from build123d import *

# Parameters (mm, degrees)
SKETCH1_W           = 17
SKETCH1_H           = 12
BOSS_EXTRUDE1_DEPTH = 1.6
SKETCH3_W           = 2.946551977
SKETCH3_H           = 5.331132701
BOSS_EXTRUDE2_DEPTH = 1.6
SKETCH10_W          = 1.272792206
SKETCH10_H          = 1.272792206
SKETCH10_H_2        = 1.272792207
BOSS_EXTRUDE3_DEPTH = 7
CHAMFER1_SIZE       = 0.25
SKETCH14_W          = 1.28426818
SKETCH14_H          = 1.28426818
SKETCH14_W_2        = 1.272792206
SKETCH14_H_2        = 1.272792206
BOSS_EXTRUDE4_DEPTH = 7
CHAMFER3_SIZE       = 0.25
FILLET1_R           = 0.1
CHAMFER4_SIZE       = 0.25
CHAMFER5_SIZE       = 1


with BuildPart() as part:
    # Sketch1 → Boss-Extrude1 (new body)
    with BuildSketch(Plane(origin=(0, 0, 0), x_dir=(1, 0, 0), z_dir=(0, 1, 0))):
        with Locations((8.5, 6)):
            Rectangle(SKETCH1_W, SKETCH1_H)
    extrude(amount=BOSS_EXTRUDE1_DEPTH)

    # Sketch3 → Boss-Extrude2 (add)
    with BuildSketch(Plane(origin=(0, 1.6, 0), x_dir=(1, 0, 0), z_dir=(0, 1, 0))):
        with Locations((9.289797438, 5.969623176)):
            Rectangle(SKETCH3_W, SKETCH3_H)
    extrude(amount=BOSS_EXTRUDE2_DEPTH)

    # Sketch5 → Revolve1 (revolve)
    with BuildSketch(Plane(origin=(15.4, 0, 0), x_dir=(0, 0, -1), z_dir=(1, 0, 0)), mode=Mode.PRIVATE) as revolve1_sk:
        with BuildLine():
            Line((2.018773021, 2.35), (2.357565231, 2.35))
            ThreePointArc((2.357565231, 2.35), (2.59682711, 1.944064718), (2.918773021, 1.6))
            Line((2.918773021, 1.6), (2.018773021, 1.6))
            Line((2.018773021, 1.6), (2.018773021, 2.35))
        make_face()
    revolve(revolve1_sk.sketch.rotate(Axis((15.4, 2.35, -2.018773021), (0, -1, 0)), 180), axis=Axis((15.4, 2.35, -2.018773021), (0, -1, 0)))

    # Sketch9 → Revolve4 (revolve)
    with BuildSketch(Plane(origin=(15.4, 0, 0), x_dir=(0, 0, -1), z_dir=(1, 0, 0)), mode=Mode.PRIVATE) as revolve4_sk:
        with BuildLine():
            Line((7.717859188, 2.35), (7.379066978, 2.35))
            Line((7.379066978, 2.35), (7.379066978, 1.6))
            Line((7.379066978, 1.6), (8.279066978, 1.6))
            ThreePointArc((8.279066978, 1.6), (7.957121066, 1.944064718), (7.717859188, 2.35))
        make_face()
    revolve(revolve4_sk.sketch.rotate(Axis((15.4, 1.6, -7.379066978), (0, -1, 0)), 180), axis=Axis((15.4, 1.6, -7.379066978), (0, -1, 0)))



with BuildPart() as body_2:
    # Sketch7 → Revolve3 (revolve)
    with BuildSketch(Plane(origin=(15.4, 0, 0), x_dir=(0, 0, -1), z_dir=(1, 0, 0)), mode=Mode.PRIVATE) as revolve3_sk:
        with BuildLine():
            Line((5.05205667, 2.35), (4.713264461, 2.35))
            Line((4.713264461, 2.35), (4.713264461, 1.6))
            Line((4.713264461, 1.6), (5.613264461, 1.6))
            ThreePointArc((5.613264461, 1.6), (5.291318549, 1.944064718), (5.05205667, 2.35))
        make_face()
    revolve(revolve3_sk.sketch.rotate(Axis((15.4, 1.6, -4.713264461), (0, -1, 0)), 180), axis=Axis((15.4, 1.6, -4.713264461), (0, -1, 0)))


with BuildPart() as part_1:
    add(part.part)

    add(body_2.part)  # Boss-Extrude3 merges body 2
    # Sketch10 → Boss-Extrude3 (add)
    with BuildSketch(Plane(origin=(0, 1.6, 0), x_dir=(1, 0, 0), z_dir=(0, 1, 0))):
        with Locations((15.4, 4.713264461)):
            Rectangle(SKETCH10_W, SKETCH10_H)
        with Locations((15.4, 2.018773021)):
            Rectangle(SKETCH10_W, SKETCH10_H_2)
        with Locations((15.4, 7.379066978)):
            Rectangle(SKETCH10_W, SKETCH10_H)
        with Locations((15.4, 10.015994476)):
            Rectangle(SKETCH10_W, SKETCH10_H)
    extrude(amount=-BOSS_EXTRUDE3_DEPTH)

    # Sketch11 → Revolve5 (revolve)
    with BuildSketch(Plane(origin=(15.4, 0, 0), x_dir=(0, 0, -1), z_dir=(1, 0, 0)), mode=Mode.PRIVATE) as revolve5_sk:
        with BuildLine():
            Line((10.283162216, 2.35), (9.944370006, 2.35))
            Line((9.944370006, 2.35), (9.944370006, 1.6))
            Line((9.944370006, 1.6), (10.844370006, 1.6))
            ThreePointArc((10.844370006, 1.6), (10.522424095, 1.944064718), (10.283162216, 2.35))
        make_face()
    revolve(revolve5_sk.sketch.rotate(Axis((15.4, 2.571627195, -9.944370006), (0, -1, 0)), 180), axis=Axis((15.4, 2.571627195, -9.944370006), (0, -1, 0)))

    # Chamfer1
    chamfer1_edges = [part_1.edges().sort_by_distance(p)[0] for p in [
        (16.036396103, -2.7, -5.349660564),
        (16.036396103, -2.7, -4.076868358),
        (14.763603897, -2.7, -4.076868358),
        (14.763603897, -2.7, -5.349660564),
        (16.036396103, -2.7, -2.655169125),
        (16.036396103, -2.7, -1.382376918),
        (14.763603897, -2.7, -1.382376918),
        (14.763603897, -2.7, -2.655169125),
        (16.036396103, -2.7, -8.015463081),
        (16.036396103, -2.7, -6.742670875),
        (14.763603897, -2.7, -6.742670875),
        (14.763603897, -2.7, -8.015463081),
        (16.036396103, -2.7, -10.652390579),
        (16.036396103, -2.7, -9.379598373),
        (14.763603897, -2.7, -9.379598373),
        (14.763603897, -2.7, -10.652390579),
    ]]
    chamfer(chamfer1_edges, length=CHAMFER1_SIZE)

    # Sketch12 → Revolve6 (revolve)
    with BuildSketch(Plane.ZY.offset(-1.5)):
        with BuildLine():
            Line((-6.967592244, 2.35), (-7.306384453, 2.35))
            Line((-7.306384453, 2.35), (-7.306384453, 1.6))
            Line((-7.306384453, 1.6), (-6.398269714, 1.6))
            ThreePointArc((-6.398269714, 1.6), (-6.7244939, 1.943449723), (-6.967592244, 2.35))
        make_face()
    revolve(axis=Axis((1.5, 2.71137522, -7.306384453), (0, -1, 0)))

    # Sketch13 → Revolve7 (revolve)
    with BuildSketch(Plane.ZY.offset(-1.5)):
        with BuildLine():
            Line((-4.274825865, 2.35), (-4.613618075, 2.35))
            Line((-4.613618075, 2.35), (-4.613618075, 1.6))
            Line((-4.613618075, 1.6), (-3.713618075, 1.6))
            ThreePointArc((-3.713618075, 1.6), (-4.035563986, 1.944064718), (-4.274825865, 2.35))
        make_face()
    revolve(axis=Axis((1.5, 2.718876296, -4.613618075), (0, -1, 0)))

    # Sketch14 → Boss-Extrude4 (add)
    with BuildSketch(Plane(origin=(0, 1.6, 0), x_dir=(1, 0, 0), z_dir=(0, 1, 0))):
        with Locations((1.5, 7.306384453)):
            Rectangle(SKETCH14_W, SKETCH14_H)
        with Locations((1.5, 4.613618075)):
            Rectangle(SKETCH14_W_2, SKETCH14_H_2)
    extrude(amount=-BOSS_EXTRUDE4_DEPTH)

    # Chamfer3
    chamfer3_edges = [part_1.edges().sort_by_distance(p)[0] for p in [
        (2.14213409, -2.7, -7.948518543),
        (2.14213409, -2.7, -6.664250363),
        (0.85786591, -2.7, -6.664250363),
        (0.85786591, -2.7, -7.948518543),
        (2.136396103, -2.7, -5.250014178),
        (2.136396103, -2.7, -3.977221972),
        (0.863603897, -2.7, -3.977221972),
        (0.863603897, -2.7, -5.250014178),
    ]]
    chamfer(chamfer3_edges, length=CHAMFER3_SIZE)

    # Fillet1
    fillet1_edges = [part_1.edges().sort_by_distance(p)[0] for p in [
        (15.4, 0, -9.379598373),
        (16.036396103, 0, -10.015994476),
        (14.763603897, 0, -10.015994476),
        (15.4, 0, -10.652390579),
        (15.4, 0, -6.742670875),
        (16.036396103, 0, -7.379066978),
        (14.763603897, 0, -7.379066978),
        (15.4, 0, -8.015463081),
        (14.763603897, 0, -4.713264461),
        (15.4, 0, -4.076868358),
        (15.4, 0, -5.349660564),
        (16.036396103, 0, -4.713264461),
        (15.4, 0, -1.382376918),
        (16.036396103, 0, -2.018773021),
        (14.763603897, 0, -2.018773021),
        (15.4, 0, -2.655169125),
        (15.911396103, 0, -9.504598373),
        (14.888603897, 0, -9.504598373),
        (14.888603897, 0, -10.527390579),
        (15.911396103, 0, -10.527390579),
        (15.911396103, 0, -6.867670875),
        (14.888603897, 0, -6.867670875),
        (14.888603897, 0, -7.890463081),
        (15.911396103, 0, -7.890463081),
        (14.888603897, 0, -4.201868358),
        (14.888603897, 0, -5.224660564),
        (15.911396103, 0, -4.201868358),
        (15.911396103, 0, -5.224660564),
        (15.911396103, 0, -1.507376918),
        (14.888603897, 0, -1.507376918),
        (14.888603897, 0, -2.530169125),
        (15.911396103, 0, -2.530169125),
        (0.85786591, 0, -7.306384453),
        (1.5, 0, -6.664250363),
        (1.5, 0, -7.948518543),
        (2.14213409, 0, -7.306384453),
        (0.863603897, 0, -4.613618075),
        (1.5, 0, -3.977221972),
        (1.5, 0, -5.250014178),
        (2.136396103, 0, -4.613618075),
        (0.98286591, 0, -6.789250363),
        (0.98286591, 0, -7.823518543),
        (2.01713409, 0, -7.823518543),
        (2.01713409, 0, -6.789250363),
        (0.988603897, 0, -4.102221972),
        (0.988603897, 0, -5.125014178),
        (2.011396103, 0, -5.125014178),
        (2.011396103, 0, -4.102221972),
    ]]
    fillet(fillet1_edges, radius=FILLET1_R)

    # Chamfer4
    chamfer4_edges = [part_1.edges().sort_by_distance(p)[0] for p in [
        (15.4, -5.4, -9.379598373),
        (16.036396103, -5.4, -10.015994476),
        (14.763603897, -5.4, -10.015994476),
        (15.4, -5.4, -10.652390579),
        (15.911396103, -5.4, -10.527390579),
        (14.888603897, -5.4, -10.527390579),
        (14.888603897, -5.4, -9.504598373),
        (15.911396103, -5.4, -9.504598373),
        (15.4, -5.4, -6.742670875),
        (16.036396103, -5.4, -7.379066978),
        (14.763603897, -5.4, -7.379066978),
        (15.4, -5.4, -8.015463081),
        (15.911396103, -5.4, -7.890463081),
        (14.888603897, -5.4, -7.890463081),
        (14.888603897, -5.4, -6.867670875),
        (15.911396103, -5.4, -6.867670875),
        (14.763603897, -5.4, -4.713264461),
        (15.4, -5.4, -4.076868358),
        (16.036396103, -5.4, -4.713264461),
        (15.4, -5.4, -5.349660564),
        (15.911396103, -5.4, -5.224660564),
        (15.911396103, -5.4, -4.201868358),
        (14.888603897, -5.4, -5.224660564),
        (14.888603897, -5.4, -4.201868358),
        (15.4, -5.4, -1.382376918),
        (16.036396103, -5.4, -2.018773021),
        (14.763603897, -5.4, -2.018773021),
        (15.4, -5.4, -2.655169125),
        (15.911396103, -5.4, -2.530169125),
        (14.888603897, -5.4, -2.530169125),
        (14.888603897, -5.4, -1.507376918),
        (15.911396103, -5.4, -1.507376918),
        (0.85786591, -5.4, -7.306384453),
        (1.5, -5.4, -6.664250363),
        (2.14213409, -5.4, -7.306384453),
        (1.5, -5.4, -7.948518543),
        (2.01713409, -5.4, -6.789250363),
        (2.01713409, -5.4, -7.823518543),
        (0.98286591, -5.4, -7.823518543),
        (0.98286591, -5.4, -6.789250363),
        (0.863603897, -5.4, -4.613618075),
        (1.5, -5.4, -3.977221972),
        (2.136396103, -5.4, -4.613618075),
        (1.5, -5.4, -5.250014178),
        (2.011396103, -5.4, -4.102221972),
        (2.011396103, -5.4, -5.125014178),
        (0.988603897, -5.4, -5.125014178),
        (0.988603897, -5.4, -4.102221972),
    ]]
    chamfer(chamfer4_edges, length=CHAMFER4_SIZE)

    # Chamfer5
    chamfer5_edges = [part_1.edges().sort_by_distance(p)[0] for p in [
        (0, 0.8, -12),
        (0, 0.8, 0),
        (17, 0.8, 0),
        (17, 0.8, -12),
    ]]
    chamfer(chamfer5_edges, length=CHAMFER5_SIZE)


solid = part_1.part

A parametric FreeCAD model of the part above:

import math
import FreeCAD as App
import Part
import Sketcher
from FreeCAD import Vector


def edges_at(feature, points):
    """Names of the edges that pass closest to the given points."""
    edges = feature.Shape.Edges
    near = lambda p: min(range(len(edges)), key=lambda i: edges[i].distToShape(Part.Vertex(*p))[0])
    return sorted({f"Edge{near(p) + 1}" for p in points})

doc = App.newDocument("Part")
body = doc.addObject("PartDesign::Body", "Body")

# Sketch on XZ plane
sketch1 = body.newObject("Sketcher::SketchObject", "Sketch")
sketch1.AttachmentSupport = (doc.getObject("XZ_Plane"), [""])
sketch1.MapMode = "FlatFace"
sketch1.addGeometry([
    Part.LineSegment(Vector(0, -12, 0), Vector(0, 0, 0)),
    Part.LineSegment(Vector(0, 0, 0), Vector(17, 0, 0)),
    Part.LineSegment(Vector(17, 0, 0), Vector(17, -12, 0)),
    Part.LineSegment(Vector(17, -12, 0), Vector(0, -12, 0)),
], False)
sketch1.addConstraint([
    Sketcher.Constraint("Coincident", 0, 2, 1, 1),
    Sketcher.Constraint("Coincident", 1, 2, 2, 1),
    Sketcher.Constraint("Coincident", 2, 2, 3, 1),
    Sketcher.Constraint("Coincident", 3, 2, 0, 1),
    Sketcher.Constraint("Vertical", 0),
    Sketcher.Constraint("Horizontal", 1),
    Sketcher.Constraint("Vertical", 2),
    Sketcher.Constraint("Horizontal", 3),
    Sketcher.Constraint("Coincident", 0, 2, -1, 1),
    Sketcher.Constraint("DistanceX", 1, 1, 1, 2, 17.0),
    Sketcher.Constraint("DistanceY", 0, 1, 0, 2, 12.0),
])
pad1 = body.newObject("PartDesign::Pad", "Pad")
pad1.Profile = sketch1
pad1.Length = 1.6
pad1.Reversed = True

# Sketch on XZ plane
sketch2 = body.newObject("Sketcher::SketchObject", "Sketch001")
sketch2.AttachmentSupport = (doc.getObject("XZ_Plane"), [""])
sketch2.MapMode = "FlatFace"
sketch2.AttachmentOffset = App.Placement(Vector(0, 0, -1.6), App.Rotation())
sketch2.addGeometry([
    Part.LineSegment(Vector(7.8, -8.6, 0), Vector(7.8, -3.3, 0)),
    Part.LineSegment(Vector(7.8, -3.3, 0), Vector(10.8, -3.3, 0)),
    Part.LineSegment(Vector(10.8, -3.3, 0), Vector(10.8, -8.6, 0)),
    Part.LineSegment(Vector(10.8, -8.6, 0), Vector(7.8, -8.6, 0)),
], False)
sketch2.addConstraint([
    Sketcher.Constraint("Coincident", 0, 2, 1, 1),
    Sketcher.Constraint("Coincident", 1, 2, 2, 1),
    Sketcher.Constraint("Coincident", 2, 2, 3, 1),
    Sketcher.Constraint("Coincident", 3, 2, 0, 1),
    Sketcher.Constraint("Vertical", 0),
    Sketcher.Constraint("Horizontal", 1),
    Sketcher.Constraint("Vertical", 2),
    Sketcher.Constraint("Horizontal", 3),
    Sketcher.Constraint("DistanceX", 1, 1, 1, 2, 2.946552),
    Sketcher.Constraint("DistanceY", 0, 1, 0, 2, 5.331133),
    Sketcher.Constraint("DistanceX", -1, 1, 0, 2, 7.816521),
    Sketcher.Constraint("DistanceY", 2, 2, -1, 1, 8.63519),
])
pad2 = body.newObject("PartDesign::Pad", "Pad001")
pad2.Profile = sketch2
pad2.Length = 1.6
pad2.Reversed = True

# Sketch on YZ plane
sketch3 = body.newObject("Sketcher::SketchObject", "Sketch002")
sketch3.AttachmentSupport = (doc.getObject("YZ_Plane"), [""])
sketch3.MapMode = "FlatFace"
sketch3.AttachmentOffset = App.Placement(Vector(0, 0, 15.4), App.Rotation())
sketch3.addGeometry([
    Part.LineSegment(Vector(2.35, -2.36, 0), Vector(2.35, -2.02, 0)),
    Part.LineSegment(Vector(2.35, -2.02, 0), Vector(1.6, -2.02, 0)),
    Part.LineSegment(Vector(1.6, -2.02, 0), Vector(1.6, -2.92, 0)),
    Part.ArcOfCircle(Part.Circle(Vector(3.23, -4.32, 0), Vector(0, 0, 1), 2.15), math.radians(114), math.radians(139)),
], False)
sketch3.addGeometry(Part.LineSegment(Vector(3.23, -2.02, 0), Vector(1.6, -2.02, 0)), True)  # axis
sketch3.addConstraint([
    Sketcher.Constraint("Coincident", 0, 2, 1, 1),
    Sketcher.Constraint("Coincident", 1, 2, 2, 1),
    Sketcher.Constraint("Coincident", 2, 2, 3, 2),
    Sketcher.Constraint("Coincident", 3, 1, 0, 1),
    Sketcher.Constraint("Vertical", 0),
    Sketcher.Constraint("Horizontal", 1),
    Sketcher.Constraint("Vertical", 2),
    Sketcher.Constraint("Horizontal", 4),
    Sketcher.Constraint("Coincident", 4, 2, 1, 2),
    Sketcher.Constraint("Vertical", 3, 3, 4, 1),
    Sketcher.Constraint("Radius", 3, 2.15),
    Sketcher.Constraint("DistanceY", 2, 2, 2, 1, 0.9),
    Sketcher.Constraint("DistanceX", 1, 2, 1, 1, 0.75),
    Sketcher.Constraint("DistanceX", -1, 1, 1, 2, 1.6),
    Sketcher.Constraint("DistanceX", 4, 2, 4, 1, 1.632166),
    Sketcher.Constraint("DistanceY", 3, 3, -1, 1, 4.31825),
])
revolution = body.newObject("PartDesign::Revolution", "Revolution")
revolution.Profile = sketch3
revolution.ReferenceAxis = (sketch3, ["Axis0"])
revolution.Angle = 360

# Sketch on YZ plane
sketch4 = body.newObject("Sketcher::SketchObject", "Sketch003")
sketch4.AttachmentSupport = (doc.getObject("YZ_Plane"), [""])
sketch4.MapMode = "FlatFace"
sketch4.AttachmentOffset = App.Placement(Vector(0, 0, 15.4), App.Rotation())
sketch4.addGeometry([
    Part.LineSegment(Vector(2.35, -7.72, 0), Vector(2.35, -7.38, 0)),
    Part.LineSegment(Vector(2.35, -7.38, 0), Vector(1.6, -7.38, 0)),
    Part.LineSegment(Vector(1.6, -7.38, 0), Vector(1.6, -8.28, 0)),
    Part.ArcOfCircle(Part.Circle(Vector(3.23, -9.68, 0), Vector(0, 0, 1), 2.15), math.radians(114), math.radians(139)),
], False)
sketch4.addGeometry(Part.LineSegment(Vector(3.23, -7.38, 0), Vector(1.6, -7.38, 0)), True)  # axis
sketch4.addConstraint([
    Sketcher.Constraint("Coincident", 0, 2, 1, 1),
    Sketcher.Constraint("Coincident", 1, 2, 2, 1),
    Sketcher.Constraint("Coincident", 2, 2, 3, 2),
    Sketcher.Constraint("Coincident", 3, 1, 0, 1),
    Sketcher.Constraint("Vertical", 0),
    Sketcher.Constraint("Horizontal", 1),
    Sketcher.Constraint("Vertical", 2),
    Sketcher.Constraint("Horizontal", 4),
    Sketcher.Constraint("Coincident", 4, 2, 1, 2),
    Sketcher.Constraint("Vertical", 3, 3, 4, 1),
    Sketcher.Constraint("Radius", 3, 2.15),
    Sketcher.Constraint("DistanceY", 2, 2, 2, 1, 0.9),
    Sketcher.Constraint("DistanceX", 1, 2, 1, 1, 0.75),
    Sketcher.Constraint("DistanceX", -1, 1, 1, 2, 1.6),
    Sketcher.Constraint("DistanceX", 4, 2, 4, 1, 1.632166),
    Sketcher.Constraint("DistanceY", 3, 1, -1, 1, 7.717859),
])
revolution2 = body.newObject("PartDesign::Revolution", "Revolution001")
revolution2.Profile = sketch4
revolution2.ReferenceAxis = (sketch4, ["Axis0"])
revolution2.Angle = 360
body2 = doc.addObject("PartDesign::Body", "Body001")

# Sketch on YZ plane
sketch5 = body2.newObject("Sketcher::SketchObject", "Sketch004")
sketch5.AttachmentSupport = (doc.getObject("YZ_Plane001"), [""])
sketch5.MapMode = "FlatFace"
sketch5.AttachmentOffset = App.Placement(Vector(0, 0, 15.4), App.Rotation())
sketch5.addGeometry([
    Part.LineSegment(Vector(2.35, -5.05, 0), Vector(2.35, -4.71, 0)),
    Part.LineSegment(Vector(2.35, -4.71, 0), Vector(1.6, -4.71, 0)),
    Part.LineSegment(Vector(1.6, -4.71, 0), Vector(1.6, -5.61, 0)),
    Part.ArcOfCircle(Part.Circle(Vector(3.23, -7.01, 0), Vector(0, 0, 1), 2.15), math.radians(114), math.radians(139)),
], False)
sketch5.addGeometry(Part.LineSegment(Vector(3.23, -4.71, 0), Vector(1.6, -4.71, 0)), True)  # axis
sketch5.addConstraint([
    Sketcher.Constraint("Coincident", 0, 2, 1, 1),
    Sketcher.Constraint("Coincident", 1, 2, 2, 1),
    Sketcher.Constraint("Coincident", 2, 2, 3, 2),
    Sketcher.Constraint("Coincident", 3, 1, 0, 1),
    Sketcher.Constraint("Vertical", 0),
    Sketcher.Constraint("Horizontal", 1),
    Sketcher.Constraint("Vertical", 2),
    Sketcher.Constraint("Horizontal", 4),
    Sketcher.Constraint("Coincident", 4, 2, 1, 2),
    Sketcher.Constraint("Vertical", 3, 3, 4, 1),
    Sketcher.Constraint("Radius", 3, 2.15),
    Sketcher.Constraint("DistanceY", 2, 2, 2, 1, 0.9),
    Sketcher.Constraint("DistanceX", 1, 2, 1, 1, 0.75),
    Sketcher.Constraint("DistanceX", -1, 1, 1, 2, 1.6),
    Sketcher.Constraint("DistanceX", 4, 2, 4, 1, 1.632166),
    Sketcher.Constraint("DistanceY", 3, 3, -1, 1, 7.012741),
])
revolution3 = body2.newObject("PartDesign::Revolution", "Revolution002")
revolution3.Profile = sketch5
revolution3.ReferenceAxis = (sketch5, ["Axis0"])
revolution3.Angle = 360
doc.recompute()

boolean = body.newObject("PartDesign::Boolean", "Boolean")
boolean.Type = "Fuse"
boolean.addObjects([body2])

# Sketch on XZ plane
sketch6 = body.newObject("Sketcher::SketchObject", "Sketch005")
sketch6.AttachmentSupport = (doc.getObject("XZ_Plane"), [""])
sketch6.MapMode = "FlatFace"
sketch6.AttachmentOffset = App.Placement(Vector(0, 0, -1.6), App.Rotation())
sketch6.addGeometry([
    Part.LineSegment(Vector(14.8, -5.3, 0), Vector(14.8, -4.1, 0)),  # 0
    Part.LineSegment(Vector(14.8, -4.1, 0), Vector(16, -4.1, 0)),  # 1
    Part.LineSegment(Vector(16, -4.1, 0), Vector(16, -5.3, 0)),  # 2
    Part.LineSegment(Vector(16, -5.3, 0), Vector(14.8, -5.3, 0)),  # 3
    Part.LineSegment(Vector(14.8, -2.7, 0), Vector(14.8, -1.4, 0)),  # 4
    Part.LineSegment(Vector(14.8, -1.4, 0), Vector(16, -1.4, 0)),  # 5
    Part.LineSegment(Vector(16, -1.4, 0), Vector(16, -2.7, 0)),  # 6
    Part.LineSegment(Vector(16, -2.7, 0), Vector(14.8, -2.7, 0)),  # 7
    Part.LineSegment(Vector(14.8, -8, 0), Vector(14.8, -6.7, 0)),  # 8
    Part.LineSegment(Vector(14.8, -6.7, 0), Vector(16, -6.7, 0)),  # 9
    Part.LineSegment(Vector(16, -6.7, 0), Vector(16, -8, 0)),  # 10
    Part.LineSegment(Vector(16, -8, 0), Vector(14.8, -8, 0)),  # 11
    Part.LineSegment(Vector(14.8, -10.7, 0), Vector(14.8, -9.4, 0)),  # 12
    Part.LineSegment(Vector(14.8, -9.4, 0), Vector(16, -9.4, 0)),  # 13
    Part.LineSegment(Vector(16, -9.4, 0), Vector(16, -10.7, 0)),  # 14
    Part.LineSegment(Vector(16, -10.7, 0), Vector(14.8, -10.7, 0)),  # 15
], False)
sketch6.addConstraint([
    Sketcher.Constraint("Coincident", 0, 2, 1, 1),
    Sketcher.Constraint("Coincident", 1, 2, 2, 1),
    Sketcher.Constraint("Coincident", 2, 2, 3, 1),
    Sketcher.Constraint("Coincident", 3, 2, 0, 1),
    Sketcher.Constraint("Coincident", 4, 2, 5, 1),
    Sketcher.Constraint("Coincident", 5, 2, 6, 1),
    Sketcher.Constraint("Coincident", 6, 2, 7, 1),
    Sketcher.Constraint("Coincident", 7, 2, 4, 1),
    Sketcher.Constraint("Coincident", 8, 2, 9, 1),
    Sketcher.Constraint("Coincident", 9, 2, 10, 1),
    Sketcher.Constraint("Coincident", 10, 2, 11, 1),
    Sketcher.Constraint("Coincident", 11, 2, 8, 1),
    Sketcher.Constraint("Coincident", 12, 2, 13, 1),
    Sketcher.Constraint("Coincident", 13, 2, 14, 1),
    Sketcher.Constraint("Coincident", 14, 2, 15, 1),
    Sketcher.Constraint("Coincident", 15, 2, 12, 1),
    Sketcher.Constraint("Vertical", 0),
    Sketcher.Constraint("Horizontal", 1),
    Sketcher.Constraint("Vertical", 2),
    Sketcher.Constraint("Horizontal", 3),
    Sketcher.Constraint("Vertical", 4),
    Sketcher.Constraint("Horizontal", 5),
    Sketcher.Constraint("Vertical", 6),
    Sketcher.Constraint("Horizontal", 7),
    Sketcher.Constraint("Vertical", 8),
    Sketcher.Constraint("Horizontal", 9),
    Sketcher.Constraint("Vertical", 10),
    Sketcher.Constraint("Horizontal", 11),
    Sketcher.Constraint("Vertical", 12),
    Sketcher.Constraint("Horizontal", 13),
    Sketcher.Constraint("Vertical", 14),
    Sketcher.Constraint("Horizontal", 15),
    Sketcher.Constraint("Vertical", 3, 2, 4, 2),
    Sketcher.Constraint("Vertical", 2, 2, 5, 2),
    Sketcher.Constraint("Vertical", 7, 2, 8, 2),
    Sketcher.Constraint("Vertical", 6, 2, 9, 2),
    Sketcher.Constraint("Vertical", 11, 2, 12, 2),
    Sketcher.Constraint("Vertical", 10, 2, 13, 2),
    Sketcher.Constraint("Equal", 15, 0),
    Sketcher.Constraint("Equal", 2, 4),
    Sketcher.Constraint("Equal", 6, 8),
    Sketcher.Constraint("Equal", 10, 12),
    Sketcher.Constraint("DistanceY", 12, 2, -1, 1, 9.379598),
    Sketcher.Constraint("DistanceY", 1, 2, 6, 2, 1.421699),
    Sketcher.Constraint("DistanceY", 8, 2, 7, 2, 4.087502),
    Sketcher.Constraint("DistanceX", 1, 1, 1, 2, 1.272792),
    Sketcher.Constraint("DistanceY", 0, 2, -1, 1, 4.076868),
    Sketcher.Constraint("DistanceX", -1, 1, 0, 2, 14.763604),
])
pad3 = body.newObject("PartDesign::Pad", "Pad002")
pad3.Profile = sketch6
pad3.Length = 7

# Sketch on YZ plane
sketch7 = body.newObject("Sketcher::SketchObject", "Sketch006")
sketch7.AttachmentSupport = (doc.getObject("YZ_Plane"), [""])
sketch7.MapMode = "FlatFace"
sketch7.AttachmentOffset = App.Placement(Vector(0, 0, 15.4), App.Rotation())
sketch7.addGeometry([
    Part.LineSegment(Vector(2.35, -10.28, 0), Vector(2.35, -9.94, 0)),
    Part.LineSegment(Vector(2.35, -9.94, 0), Vector(1.6, -9.94, 0)),
    Part.LineSegment(Vector(1.6, -9.94, 0), Vector(1.6, -10.84, 0)),
    Part.ArcOfCircle(Part.Circle(Vector(3.23, -12.24, 0), Vector(0, 0, 1), 2.15), math.radians(114), math.radians(139)),
], False)
sketch7.addGeometry(Part.LineSegment(Vector(3.23, -9.94, 0), Vector(1.6, -9.94, 0)), True)  # axis
sketch7.addConstraint([
    Sketcher.Constraint("Coincident", 0, 2, 1, 1),
    Sketcher.Constraint("Coincident", 1, 2, 2, 1),
    Sketcher.Constraint("Coincident", 2, 2, 3, 2),
    Sketcher.Constraint("Coincident", 3, 1, 0, 1),
    Sketcher.Constraint("Vertical", 0),
    Sketcher.Constraint("Horizontal", 1),
    Sketcher.Constraint("Vertical", 2),
    Sketcher.Constraint("Horizontal", 4),
    Sketcher.Constraint("Coincident", 4, 2, 1, 2),
    Sketcher.Constraint("Vertical", 3, 3, 4, 1),
    Sketcher.Constraint("Radius", 3, 2.15),
    Sketcher.Constraint("DistanceY", 2, 2, 2, 1, 0.9),
    Sketcher.Constraint("DistanceX", 1, 2, 1, 1, 0.75),
    Sketcher.Constraint("DistanceX", -1, 1, 1, 2, 1.6),
    Sketcher.Constraint("DistanceX", 4, 2, 4, 1, 1.632166),
    Sketcher.Constraint("DistanceY", 0, 2, -1, 1, 9.94437),
])
revolution4 = body.newObject("PartDesign::Revolution", "Revolution003")
revolution4.Profile = sketch7
revolution4.ReferenceAxis = (sketch7, ["Axis0"])
revolution4.Angle = 360
doc.recompute()

chamfer = body.newObject("PartDesign::Chamfer", "Chamfer")
chamfer.Base = (revolution4, edges_at(revolution4, [
    (16.036, -2.7, -5.35),
    (16.036, -2.7, -4.077),
    (14.764, -2.7, -4.077),
    (14.764, -2.7, -5.35),
    (16.036, -2.7, -2.655),
    (16.036, -2.7, -1.382),
    (14.764, -2.7, -1.382),
    (14.764, -2.7, -2.655),
    (16.036, -2.7, -8.015),
    (16.036, -2.7, -6.743),
    (14.764, -2.7, -6.743),
    (14.764, -2.7, -8.015),
    (16.036, -2.7, -10.652),
    (16.036, -2.7, -9.38),
    (14.764, -2.7, -9.38),
    (14.764, -2.7, -10.652),
]))
chamfer.Size = 0.25

# Sketch on YZ plane
sketch8 = body.newObject("Sketcher::SketchObject", "Sketch007")
sketch8.AttachmentSupport = (doc.getObject("YZ_Plane"), [""])
sketch8.MapMode = "FlatFace"
sketch8.AttachmentOffset = App.Placement(Vector(0, 0, 1.5), App.Rotation())
sketch8.addGeometry([
    Part.LineSegment(Vector(2.35, -6.97, 0), Vector(2.35, -7.31, 0)),
    Part.LineSegment(Vector(2.35, -7.31, 0), Vector(1.6, -7.31, 0)),
    Part.LineSegment(Vector(1.6, -7.31, 0), Vector(1.6, -6.4, 0)),
    Part.ArcOfCircle(Part.Circle(Vector(3.24, -5.01, 0), Vector(0, 0, 1), 2.15), math.radians(-140), math.radians(-115)),
], False)
sketch8.addGeometry(Part.LineSegment(Vector(3.24, -7.31, 0), Vector(1.6, -7.31, 0)), True)  # axis
sketch8.addConstraint([
    Sketcher.Constraint("Coincident", 0, 2, 1, 1),
    Sketcher.Constraint("Coincident", 1, 2, 2, 1),
    Sketcher.Constraint("Coincident", 2, 2, 3, 1),
    Sketcher.Constraint("Coincident", 3, 2, 0, 1),
    Sketcher.Constraint("Vertical", 0),
    Sketcher.Constraint("Horizontal", 1),
    Sketcher.Constraint("Vertical", 2),
    Sketcher.Constraint("Horizontal", 4),
    Sketcher.Constraint("Coincident", 4, 2, 1, 2),
    Sketcher.Constraint("Vertical", 3, 3, 4, 1),
    Sketcher.Constraint("Radius", 3, 2.15),
    Sketcher.Constraint("DistanceX", 1, 2, 1, 1, 0.75),
    Sketcher.Constraint("DistanceX", -1, 1, 1, 2, 1.6),
    Sketcher.Constraint("DistanceX", 4, 2, 4, 1, 1.643398),
    Sketcher.Constraint("DistanceY", 3, 3, -1, 1, 5.012),
    Sketcher.Constraint("DistanceY", 0, 2, 0, 1, 0.338792),
])
revolution5 = body.newObject("PartDesign::Revolution", "Revolution004")
revolution5.Profile = sketch8
revolution5.ReferenceAxis = (sketch8, ["Axis0"])
revolution5.Angle = 360

# Sketch on YZ plane
sketch9 = body.newObject("Sketcher::SketchObject", "Sketch008")
sketch9.AttachmentSupport = (doc.getObject("YZ_Plane"), [""])
sketch9.MapMode = "FlatFace"
sketch9.AttachmentOffset = App.Placement(Vector(0, 0, 1.5), App.Rotation())
sketch9.addGeometry([
    Part.LineSegment(Vector(2.35, -4.27, 0), Vector(2.35, -4.61, 0)),
    Part.LineSegment(Vector(2.35, -4.61, 0), Vector(1.6, -4.61, 0)),
    Part.LineSegment(Vector(1.6, -4.61, 0), Vector(1.6, -3.71, 0)),
    Part.ArcOfCircle(Part.Circle(Vector(3.23, -2.31, 0), Vector(0, 0, 1), 2.15), math.radians(-139), math.radians(-114)),
], False)
sketch9.addGeometry(Part.LineSegment(Vector(3.23, -4.61, 0), Vector(1.6, -4.61, 0)), True)  # axis
sketch9.addConstraint([
    Sketcher.Constraint("Coincident", 0, 2, 1, 1),
    Sketcher.Constraint("Coincident", 1, 2, 2, 1),
    Sketcher.Constraint("Coincident", 2, 2, 3, 1),
    Sketcher.Constraint("Coincident", 3, 2, 0, 1),
    Sketcher.Constraint("Vertical", 0),
    Sketcher.Constraint("Horizontal", 1),
    Sketcher.Constraint("Vertical", 2),
    Sketcher.Constraint("Horizontal", 4),
    Sketcher.Constraint("Coincident", 4, 2, 1, 2),
    Sketcher.Constraint("Vertical", 3, 3, 4, 1),
    Sketcher.Constraint("Radius", 3, 2.15),
    Sketcher.Constraint("DistanceY", 2, 1, 2, 2, 0.9),
    Sketcher.Constraint("DistanceX", 1, 2, 1, 1, 0.75),
    Sketcher.Constraint("DistanceX", -1, 1, 1, 2, 1.6),
    Sketcher.Constraint("DistanceX", 4, 2, 4, 1, 1.632166),
    Sketcher.Constraint("DistanceY", 3, 3, -1, 1, 2.314141),
])
revolution6 = body.newObject("PartDesign::Revolution", "Revolution005")
revolution6.Profile = sketch9
revolution6.ReferenceAxis = (sketch9, ["Axis0"])
revolution6.Angle = 360

# Sketch on XZ plane
sketch10 = body.newObject("Sketcher::SketchObject", "Sketch009")
sketch10.AttachmentSupport = (doc.getObject("XZ_Plane"), [""])
sketch10.MapMode = "FlatFace"
sketch10.AttachmentOffset = App.Placement(Vector(0, 0, -1.6), App.Rotation())
sketch10.addGeometry([
    Part.LineSegment(Vector(0.9, -7.9, 0), Vector(0.9, -6.7, 0)),  # 0
    Part.LineSegment(Vector(0.9, -6.7, 0), Vector(2.1, -6.7, 0)),  # 1
    Part.LineSegment(Vector(2.1, -6.7, 0), Vector(2.1, -7.9, 0)),  # 2
    Part.LineSegment(Vector(2.1, -7.9, 0), Vector(0.9, -7.9, 0)),  # 3
    Part.LineSegment(Vector(0.9, -5.3, 0), Vector(0.9, -4, 0)),  # 4
    Part.LineSegment(Vector(0.9, -4, 0), Vector(2.1, -4, 0)),  # 5
    Part.LineSegment(Vector(2.1, -4, 0), Vector(2.1, -5.3, 0)),  # 6
    Part.LineSegment(Vector(2.1, -5.3, 0), Vector(0.9, -5.3, 0)),  # 7
], False)
sketch10.addConstraint([
    Sketcher.Constraint("Coincident", 0, 2, 1, 1),
    Sketcher.Constraint("Coincident", 1, 2, 2, 1),
    Sketcher.Constraint("Coincident", 2, 2, 3, 1),
    Sketcher.Constraint("Coincident", 3, 2, 0, 1),
    Sketcher.Constraint("Coincident", 4, 2, 5, 1),
    Sketcher.Constraint("Coincident", 5, 2, 6, 1),
    Sketcher.Constraint("Coincident", 6, 2, 7, 1),
    Sketcher.Constraint("Coincident", 7, 2, 4, 1),
    Sketcher.Constraint("Vertical", 0),
    Sketcher.Constraint("Horizontal", 1),
    Sketcher.Constraint("Vertical", 2),
    Sketcher.Constraint("Horizontal", 3),
    Sketcher.Constraint("Vertical", 4),
    Sketcher.Constraint("Horizontal", 5),
    Sketcher.Constraint("Vertical", 6),
    Sketcher.Constraint("Horizontal", 7),
    Sketcher.Constraint("Equal", 3, 0),
    Sketcher.Constraint("Equal", 7, 4),
    Sketcher.Constraint("DistanceX", 1, 1, 1, 2, 1.284268),
    Sketcher.Constraint("DistanceX", 5, 1, 5, 2, 1.272792),
    Sketcher.Constraint("DistanceY", 0, 2, -1, 1, 6.66425),
    Sketcher.Constraint("DistanceY", 4, 2, -1, 1, 3.977222),
    Sketcher.Constraint("DistanceX", 4, 2, 1, 2, 1.27853),
    Sketcher.Constraint("DistanceX", -1, 1, 0, 2, 0.857866),
])
pad4 = body.newObject("PartDesign::Pad", "Pad003")
pad4.Profile = sketch10
pad4.Length = 7
doc.recompute()

chamfer2 = body.newObject("PartDesign::Chamfer", "Chamfer001")
chamfer2.Base = (pad4, edges_at(pad4, [
    (2.142, -2.7, -7.949),
    (2.142, -2.7, -6.664),
    (0.858, -2.7, -6.664),
    (0.858, -2.7, -7.949),
    (2.136, -2.7, -5.25),
    (2.136, -2.7, -3.977),
    (0.864, -2.7, -3.977),
    (0.864, -2.7, -5.25),
]))
chamfer2.Size = 0.25
doc.recompute()

fillet = body.newObject("PartDesign::Fillet", "Fillet")
fillet.Base = (chamfer2, edges_at(chamfer2, [
    (15.4, 0, -9.38),
    (16.036, 0, -10.016),
    (14.764, 0, -10.016),
    (15.4, 0, -10.652),
    (15.4, 0, -6.743),
    (16.036, 0, -7.379),
    (14.764, 0, -7.379),
    (15.4, 0, -8.015),
    (14.764, 0, -4.713),
    (15.4, 0, -4.077),
    (15.4, 0, -5.35),
    (16.036, 0, -4.713),
    (15.4, 0, -1.382),
    (16.036, 0, -2.019),
    (14.764, 0, -2.019),
    (15.4, 0, -2.655),
    (15.911, 0, -9.505),
    (14.889, 0, -9.505),
    (14.889, 0, -10.527),
    (15.911, 0, -10.527),
    (15.911, 0, -6.868),
    (14.889, 0, -6.868),
    (14.889, 0, -7.89),
    (15.911, 0, -7.89),
    (14.889, 0, -4.202),
    (14.889, 0, -5.225),
    (15.911, 0, -4.202),
    (15.911, 0, -5.225),
    (15.911, 0, -1.507),
    (14.889, 0, -1.507),
    (14.889, 0, -2.53),
    (15.911, 0, -2.53),
    (0.858, 0, -7.306),
    (1.5, 0, -6.664),
    (1.5, 0, -7.949),
    (2.142, 0, -7.306),
    (0.864, 0, -4.614),
    (1.5, 0, -3.977),
    (1.5, 0, -5.25),
    (2.136, 0, -4.614),
    (0.983, 0, -6.789),
    (0.983, 0, -7.824),
    (2.017, 0, -7.824),
    (2.017, 0, -6.789),
    (0.989, 0, -4.102),
    (0.989, 0, -5.125),
    (2.011, 0, -5.125),
    (2.011, 0, -4.102),
]))
fillet.Radius = 0.1
doc.recompute()

chamfer3 = body.newObject("PartDesign::Chamfer", "Chamfer002")
chamfer3.Base = (fillet, edges_at(fillet, [
    (15.4, -5.4, -9.38),
    (16.036, -5.4, -10.016),
    (14.764, -5.4, -10.016),
    (15.4, -5.4, -10.652),
    (15.911, -5.4, -10.527),
    (14.889, -5.4, -10.527),
    (14.889, -5.4, -9.505),
    (15.911, -5.4, -9.505),
    (15.4, -5.4, -6.743),
    (16.036, -5.4, -7.379),
    (14.764, -5.4, -7.379),
    (15.4, -5.4, -8.015),
    (15.911, -5.4, -7.89),
    (14.889, -5.4, -7.89),
    (14.889, -5.4, -6.868),
    (15.911, -5.4, -6.868),
    (14.764, -5.4, -4.713),
    (15.4, -5.4, -4.077),
    (16.036, -5.4, -4.713),
    (15.4, -5.4, -5.35),
    (15.911, -5.4, -5.225),
    (15.911, -5.4, -4.202),
    (14.889, -5.4, -5.225),
    (14.889, -5.4, -4.202),
    (15.4, -5.4, -1.382),
    (16.036, -5.4, -2.019),
    (14.764, -5.4, -2.019),
    (15.4, -5.4, -2.655),
    (15.911, -5.4, -2.53),
    (14.889, -5.4, -2.53),
    (14.889, -5.4, -1.507),
    (15.911, -5.4, -1.507),
    (0.858, -5.4, -7.306),
    (1.5, -5.4, -6.664),
    (2.142, -5.4, -7.306),
    (1.5, -5.4, -7.949),
    (2.017, -5.4, -6.789),
    (2.017, -5.4, -7.824),
    (0.983, -5.4, -7.824),
    (0.983, -5.4, -6.789),
    (0.864, -5.4, -4.614),
    (1.5, -5.4, -3.977),
    (2.136, -5.4, -4.614),
    (1.5, -5.4, -5.25),
    (2.011, -5.4, -4.102),
    (2.011, -5.4, -5.125),
    (0.989, -5.4, -5.125),
    (0.989, -5.4, -4.102),
]))
chamfer3.Size = 0.25
doc.recompute()

chamfer4 = body.newObject("PartDesign::Chamfer", "Chamfer003")
chamfer4.Base = (chamfer3, edges_at(chamfer3, [
    (0, 0.8, -12),
    (0, 0.8, 0),
    (17, 0.8, 0),
    (17, 0.8, -12),
]))
chamfer4.Size = 1

doc.recompute()
